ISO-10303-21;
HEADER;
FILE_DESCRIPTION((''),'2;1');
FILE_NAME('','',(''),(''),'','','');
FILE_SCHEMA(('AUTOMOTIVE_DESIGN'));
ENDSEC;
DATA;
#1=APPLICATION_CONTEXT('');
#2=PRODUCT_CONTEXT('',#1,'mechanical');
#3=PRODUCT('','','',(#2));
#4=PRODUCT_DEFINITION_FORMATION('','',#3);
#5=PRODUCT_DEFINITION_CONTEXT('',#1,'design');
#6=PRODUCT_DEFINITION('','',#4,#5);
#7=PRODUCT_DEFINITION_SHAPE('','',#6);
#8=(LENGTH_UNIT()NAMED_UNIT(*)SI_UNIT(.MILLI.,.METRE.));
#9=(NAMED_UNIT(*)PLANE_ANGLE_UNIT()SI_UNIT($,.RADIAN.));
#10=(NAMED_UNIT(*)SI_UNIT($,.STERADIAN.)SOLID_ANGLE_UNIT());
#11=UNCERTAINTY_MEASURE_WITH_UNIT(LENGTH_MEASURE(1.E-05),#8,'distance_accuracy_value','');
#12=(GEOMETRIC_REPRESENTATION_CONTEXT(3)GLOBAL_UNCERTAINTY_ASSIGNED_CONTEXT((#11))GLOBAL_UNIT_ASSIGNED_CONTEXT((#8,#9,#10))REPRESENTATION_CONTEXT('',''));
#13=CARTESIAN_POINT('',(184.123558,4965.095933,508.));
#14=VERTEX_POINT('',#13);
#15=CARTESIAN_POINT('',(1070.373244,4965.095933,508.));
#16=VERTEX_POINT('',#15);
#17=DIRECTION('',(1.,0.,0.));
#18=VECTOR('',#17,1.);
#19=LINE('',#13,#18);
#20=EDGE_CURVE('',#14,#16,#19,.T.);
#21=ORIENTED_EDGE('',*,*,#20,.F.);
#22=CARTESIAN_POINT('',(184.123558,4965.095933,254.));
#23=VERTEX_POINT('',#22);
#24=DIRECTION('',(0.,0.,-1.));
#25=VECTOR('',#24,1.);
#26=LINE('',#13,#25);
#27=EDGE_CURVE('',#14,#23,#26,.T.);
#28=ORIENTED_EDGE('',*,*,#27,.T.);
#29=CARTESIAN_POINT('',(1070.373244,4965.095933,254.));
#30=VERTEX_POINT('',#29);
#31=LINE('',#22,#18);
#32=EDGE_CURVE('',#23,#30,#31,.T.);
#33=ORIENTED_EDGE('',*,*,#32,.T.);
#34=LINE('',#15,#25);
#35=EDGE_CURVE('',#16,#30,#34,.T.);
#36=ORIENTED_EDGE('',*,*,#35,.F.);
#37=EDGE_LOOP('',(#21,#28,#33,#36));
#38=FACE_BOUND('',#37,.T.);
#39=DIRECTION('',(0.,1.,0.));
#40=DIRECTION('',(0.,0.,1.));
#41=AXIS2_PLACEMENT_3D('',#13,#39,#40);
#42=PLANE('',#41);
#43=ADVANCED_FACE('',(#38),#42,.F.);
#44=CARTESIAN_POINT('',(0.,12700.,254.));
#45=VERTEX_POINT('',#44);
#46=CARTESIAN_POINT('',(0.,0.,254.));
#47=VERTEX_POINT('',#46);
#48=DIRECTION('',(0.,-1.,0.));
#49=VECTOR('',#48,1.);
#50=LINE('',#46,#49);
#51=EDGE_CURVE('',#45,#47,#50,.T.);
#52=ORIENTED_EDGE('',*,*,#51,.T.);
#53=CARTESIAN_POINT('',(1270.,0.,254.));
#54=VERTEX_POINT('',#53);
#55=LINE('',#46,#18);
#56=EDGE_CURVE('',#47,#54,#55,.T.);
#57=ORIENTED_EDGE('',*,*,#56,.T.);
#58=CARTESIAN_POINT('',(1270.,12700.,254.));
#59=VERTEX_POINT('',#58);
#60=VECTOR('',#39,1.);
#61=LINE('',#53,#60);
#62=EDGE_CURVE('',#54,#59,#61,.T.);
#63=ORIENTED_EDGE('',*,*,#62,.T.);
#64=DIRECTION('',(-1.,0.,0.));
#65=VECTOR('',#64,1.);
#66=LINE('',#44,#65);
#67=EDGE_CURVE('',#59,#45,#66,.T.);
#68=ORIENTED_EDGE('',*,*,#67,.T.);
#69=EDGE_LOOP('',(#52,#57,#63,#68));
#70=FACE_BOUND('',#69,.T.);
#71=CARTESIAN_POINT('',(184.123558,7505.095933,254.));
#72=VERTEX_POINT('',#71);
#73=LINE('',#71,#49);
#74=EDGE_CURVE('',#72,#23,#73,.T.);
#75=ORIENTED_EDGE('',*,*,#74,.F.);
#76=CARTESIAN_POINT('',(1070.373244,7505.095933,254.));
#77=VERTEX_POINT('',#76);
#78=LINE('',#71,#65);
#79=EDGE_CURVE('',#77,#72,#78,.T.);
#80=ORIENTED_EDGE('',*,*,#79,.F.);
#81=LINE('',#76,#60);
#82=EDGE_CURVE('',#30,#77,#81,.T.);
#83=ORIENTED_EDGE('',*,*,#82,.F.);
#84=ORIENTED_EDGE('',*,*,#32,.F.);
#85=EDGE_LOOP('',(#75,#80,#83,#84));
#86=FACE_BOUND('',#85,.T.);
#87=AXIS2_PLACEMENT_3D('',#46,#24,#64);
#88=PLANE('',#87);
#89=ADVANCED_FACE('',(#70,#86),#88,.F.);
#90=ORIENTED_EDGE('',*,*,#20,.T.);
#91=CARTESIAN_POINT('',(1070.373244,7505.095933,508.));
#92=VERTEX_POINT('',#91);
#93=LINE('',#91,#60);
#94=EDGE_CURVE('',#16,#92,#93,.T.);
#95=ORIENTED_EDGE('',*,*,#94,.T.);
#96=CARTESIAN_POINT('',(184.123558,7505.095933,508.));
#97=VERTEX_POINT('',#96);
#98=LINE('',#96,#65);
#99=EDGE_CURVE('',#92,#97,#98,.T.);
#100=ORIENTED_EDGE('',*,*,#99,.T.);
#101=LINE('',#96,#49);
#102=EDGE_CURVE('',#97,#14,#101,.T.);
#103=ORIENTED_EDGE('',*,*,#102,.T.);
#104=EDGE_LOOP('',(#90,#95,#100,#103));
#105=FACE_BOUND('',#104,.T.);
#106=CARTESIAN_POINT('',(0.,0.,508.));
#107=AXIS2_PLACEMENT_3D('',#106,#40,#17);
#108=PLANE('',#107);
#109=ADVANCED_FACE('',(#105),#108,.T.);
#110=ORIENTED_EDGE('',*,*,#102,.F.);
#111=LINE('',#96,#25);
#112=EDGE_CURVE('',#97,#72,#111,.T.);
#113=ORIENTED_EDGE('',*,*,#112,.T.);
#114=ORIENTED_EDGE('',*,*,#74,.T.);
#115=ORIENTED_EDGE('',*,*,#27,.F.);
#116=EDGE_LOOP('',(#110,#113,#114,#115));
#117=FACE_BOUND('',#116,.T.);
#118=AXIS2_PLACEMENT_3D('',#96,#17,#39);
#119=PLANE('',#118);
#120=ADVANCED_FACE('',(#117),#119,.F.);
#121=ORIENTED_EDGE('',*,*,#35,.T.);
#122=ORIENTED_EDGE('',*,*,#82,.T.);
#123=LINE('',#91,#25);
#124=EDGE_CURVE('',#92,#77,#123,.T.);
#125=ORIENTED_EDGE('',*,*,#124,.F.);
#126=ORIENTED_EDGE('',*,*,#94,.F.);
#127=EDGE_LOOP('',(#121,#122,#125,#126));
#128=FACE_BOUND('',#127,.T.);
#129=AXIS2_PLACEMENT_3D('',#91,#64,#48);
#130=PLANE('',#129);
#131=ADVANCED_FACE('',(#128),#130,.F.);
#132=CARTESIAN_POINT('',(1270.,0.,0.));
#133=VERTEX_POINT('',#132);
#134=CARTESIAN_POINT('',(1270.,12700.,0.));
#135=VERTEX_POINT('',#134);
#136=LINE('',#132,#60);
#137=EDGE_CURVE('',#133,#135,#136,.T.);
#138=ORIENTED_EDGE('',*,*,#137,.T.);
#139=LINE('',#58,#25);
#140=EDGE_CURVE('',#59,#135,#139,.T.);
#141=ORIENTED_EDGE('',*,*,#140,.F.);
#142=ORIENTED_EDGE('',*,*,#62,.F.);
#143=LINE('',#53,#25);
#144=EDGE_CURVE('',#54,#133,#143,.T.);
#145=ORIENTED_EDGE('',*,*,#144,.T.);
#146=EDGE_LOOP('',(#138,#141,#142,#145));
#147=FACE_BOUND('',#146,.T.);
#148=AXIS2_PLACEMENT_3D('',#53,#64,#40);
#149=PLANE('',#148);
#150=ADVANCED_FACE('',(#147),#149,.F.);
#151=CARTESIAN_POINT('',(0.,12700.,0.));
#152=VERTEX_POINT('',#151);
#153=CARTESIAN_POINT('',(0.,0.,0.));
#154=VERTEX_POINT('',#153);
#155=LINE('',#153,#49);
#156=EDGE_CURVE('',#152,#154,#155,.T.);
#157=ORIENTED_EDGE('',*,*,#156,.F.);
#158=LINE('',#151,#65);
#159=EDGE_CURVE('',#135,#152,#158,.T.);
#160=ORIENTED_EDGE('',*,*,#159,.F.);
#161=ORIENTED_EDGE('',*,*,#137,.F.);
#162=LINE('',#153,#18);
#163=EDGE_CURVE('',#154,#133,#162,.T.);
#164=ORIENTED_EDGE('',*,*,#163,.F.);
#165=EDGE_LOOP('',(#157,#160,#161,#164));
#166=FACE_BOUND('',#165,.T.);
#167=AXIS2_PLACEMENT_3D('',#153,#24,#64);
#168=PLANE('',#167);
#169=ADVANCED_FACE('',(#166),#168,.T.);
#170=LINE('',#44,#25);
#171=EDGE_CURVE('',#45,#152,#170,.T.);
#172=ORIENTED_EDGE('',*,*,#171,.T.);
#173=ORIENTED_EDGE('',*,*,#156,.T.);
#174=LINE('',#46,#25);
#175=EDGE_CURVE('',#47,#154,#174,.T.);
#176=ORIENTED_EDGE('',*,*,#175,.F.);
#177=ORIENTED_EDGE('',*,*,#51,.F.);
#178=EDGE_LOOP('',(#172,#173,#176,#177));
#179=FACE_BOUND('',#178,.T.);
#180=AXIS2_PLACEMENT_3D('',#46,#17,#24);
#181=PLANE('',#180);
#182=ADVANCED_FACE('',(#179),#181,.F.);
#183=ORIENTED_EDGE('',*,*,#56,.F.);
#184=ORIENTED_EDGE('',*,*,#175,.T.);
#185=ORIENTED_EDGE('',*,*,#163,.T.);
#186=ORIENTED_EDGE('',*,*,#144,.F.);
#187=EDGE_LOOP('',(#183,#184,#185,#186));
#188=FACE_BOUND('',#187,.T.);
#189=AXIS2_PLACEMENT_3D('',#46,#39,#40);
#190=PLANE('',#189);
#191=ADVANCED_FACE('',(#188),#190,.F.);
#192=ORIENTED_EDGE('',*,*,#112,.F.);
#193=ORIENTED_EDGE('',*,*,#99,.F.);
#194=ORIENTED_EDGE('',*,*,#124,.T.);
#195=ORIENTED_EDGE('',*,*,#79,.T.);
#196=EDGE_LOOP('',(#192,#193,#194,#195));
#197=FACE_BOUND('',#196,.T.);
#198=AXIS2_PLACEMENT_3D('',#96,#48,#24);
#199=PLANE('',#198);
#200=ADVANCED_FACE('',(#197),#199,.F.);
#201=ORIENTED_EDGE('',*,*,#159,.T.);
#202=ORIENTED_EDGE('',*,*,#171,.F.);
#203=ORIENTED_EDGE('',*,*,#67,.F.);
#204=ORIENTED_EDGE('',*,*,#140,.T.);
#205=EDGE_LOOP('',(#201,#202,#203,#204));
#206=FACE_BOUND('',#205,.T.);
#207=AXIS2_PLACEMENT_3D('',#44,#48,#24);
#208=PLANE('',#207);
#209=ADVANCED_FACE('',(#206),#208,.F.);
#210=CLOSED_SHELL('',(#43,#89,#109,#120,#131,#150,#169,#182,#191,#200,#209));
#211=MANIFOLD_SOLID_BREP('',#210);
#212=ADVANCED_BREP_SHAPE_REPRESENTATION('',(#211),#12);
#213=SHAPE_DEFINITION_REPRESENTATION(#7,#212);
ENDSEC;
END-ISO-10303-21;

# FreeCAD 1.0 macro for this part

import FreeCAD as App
import Part
import Sketcher
Q = App.Units.Quantity


def add_polygon(sketch, points):
    """Adds a closed chain of lines whose ends are joined by coincident constraints."""
    first, n = sketch.GeometryCount, len(points)
    for a, b in zip(points, points[1:] + points[:1]):
        sketch.addGeometry(Part.LineSegment(App.Vector(*a, 0), App.Vector(*b, 0)), False)
    for i in range(n):
        sketch.addConstraint(Sketcher.Constraint("Coincident", first + i, 2, first + (i + 1) % n, 1))

doc = App.newDocument("Part")
body = doc.addObject("PartDesign::Body", "Body")

sketch1 = doc.addObject("Sketcher::SketchObject", "Sketch")
body.addObject(sketch1)
sketch1.AttachmentSupport = (doc.XY_Plane, [""])
sketch1.MapMode = "FlatFace"
add_polygon(sketch1, [(0, 12700), (0, 0), (1270, 0), (1270, 12700)])
sketch1.addConstraint([
    Sketcher.Constraint("Vertical", 0),
    Sketcher.Constraint("Horizontal", 1),
    Sketcher.Constraint("Vertical", 2),
    Sketcher.Constraint("Horizontal", 3),
    Sketcher.Constraint("Coincident", 0, 2, -1, 1),
    Sketcher.Constraint("DistanceX", 1, 1, 1, 2, Q("50 in")),
    Sketcher.Constraint("DistanceY", 0, 2, 0, 1, Q("500 in")),
])
pad1 = doc.addObject("PartDesign::Pad", "Pad")
body.addObject(pad1)
pad1.Profile = sketch1
pad1.Length = Q("10 in")

sketch2 = doc.addObject("Sketcher::SketchObject", "Sketch001")
body.addObject(sketch2)
sketch2.AttachmentSupport = (doc.XY_Plane, [""])
sketch2.MapMode = "FlatFace"
sketch2.AttachmentOffset = App.Placement(App.Vector(0, 0, 10 * 25.4), App.Rotation())
add_polygon(sketch2, [(184, 7505), (184, 4965), (1070, 4965), (1070, 7505)])
sketch2.addConstraint([
    Sketcher.Constraint("Vertical", 0),
    Sketcher.Constraint("Horizontal", 1),
    Sketcher.Constraint("Vertical", 2),
    Sketcher.Constraint("Horizontal", 3),
    Sketcher.Constraint("DistanceY", 0, 2, 0, 1, Q("100 in")),
    Sketcher.Constraint("DistanceX", 1, 1, 1, 2, 886.249685),
    Sketcher.Constraint("DistanceX", -1, 1, 0, 2, 184.123558),
    Sketcher.Constraint("DistanceY", -1, 1, 0, 2, 4965.095933),
])
pad2 = doc.addObject("PartDesign::Pad", "Pad001")
body.addObject(pad2)
pad2.Profile = sketch2
pad2.Length = Q("10 in")

doc.recompute()
